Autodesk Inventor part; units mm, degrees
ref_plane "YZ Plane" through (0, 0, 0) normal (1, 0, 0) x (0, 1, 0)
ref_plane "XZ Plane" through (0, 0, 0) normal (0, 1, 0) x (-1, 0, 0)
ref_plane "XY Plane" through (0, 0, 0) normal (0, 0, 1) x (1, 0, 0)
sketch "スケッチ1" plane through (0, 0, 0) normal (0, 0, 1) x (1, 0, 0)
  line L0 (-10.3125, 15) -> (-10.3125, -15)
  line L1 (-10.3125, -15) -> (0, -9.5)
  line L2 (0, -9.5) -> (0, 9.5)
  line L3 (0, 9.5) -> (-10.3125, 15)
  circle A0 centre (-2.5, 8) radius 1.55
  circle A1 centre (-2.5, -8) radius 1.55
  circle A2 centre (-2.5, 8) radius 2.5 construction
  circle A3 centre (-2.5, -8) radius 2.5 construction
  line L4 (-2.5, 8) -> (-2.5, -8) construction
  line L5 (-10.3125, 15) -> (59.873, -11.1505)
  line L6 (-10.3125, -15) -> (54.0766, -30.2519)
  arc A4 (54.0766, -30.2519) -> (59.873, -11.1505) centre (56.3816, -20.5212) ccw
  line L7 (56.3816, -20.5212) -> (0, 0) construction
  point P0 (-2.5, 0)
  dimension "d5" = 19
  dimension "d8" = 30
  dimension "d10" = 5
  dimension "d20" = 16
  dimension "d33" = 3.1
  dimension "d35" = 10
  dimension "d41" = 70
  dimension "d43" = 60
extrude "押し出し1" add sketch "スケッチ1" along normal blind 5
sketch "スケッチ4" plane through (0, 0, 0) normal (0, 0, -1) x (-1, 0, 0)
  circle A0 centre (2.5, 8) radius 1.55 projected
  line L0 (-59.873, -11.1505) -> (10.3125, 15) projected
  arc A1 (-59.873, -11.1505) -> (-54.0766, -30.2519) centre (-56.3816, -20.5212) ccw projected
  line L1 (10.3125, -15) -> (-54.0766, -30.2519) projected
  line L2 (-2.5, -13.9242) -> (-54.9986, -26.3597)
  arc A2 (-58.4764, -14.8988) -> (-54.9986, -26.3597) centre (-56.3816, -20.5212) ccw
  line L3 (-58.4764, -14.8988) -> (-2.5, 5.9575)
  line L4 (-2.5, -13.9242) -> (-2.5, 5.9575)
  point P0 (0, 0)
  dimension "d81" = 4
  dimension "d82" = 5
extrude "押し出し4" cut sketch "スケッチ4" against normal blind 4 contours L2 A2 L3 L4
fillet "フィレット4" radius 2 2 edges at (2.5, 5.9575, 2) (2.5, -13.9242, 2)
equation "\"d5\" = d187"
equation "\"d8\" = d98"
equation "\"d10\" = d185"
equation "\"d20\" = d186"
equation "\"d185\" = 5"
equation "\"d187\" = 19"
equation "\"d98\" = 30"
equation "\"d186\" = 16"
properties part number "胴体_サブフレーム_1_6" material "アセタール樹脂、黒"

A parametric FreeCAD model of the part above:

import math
import FreeCAD as App
import Part
import Sketcher

V = App.Vector


def edges_at(feature, points):
    """Names of the edges that pass closest to the given points."""
    edges = feature.Shape.Edges
    near = lambda p: min(range(len(edges)), key=lambda i: edges[i].distToShape(Part.Vertex(*p))[0])
    return sorted({f"Edge{near(p) + 1}" for p in points})

doc = App.newDocument("Part")
body = doc.addObject("PartDesign::Body", "Body")

# Sketch on XY plane
sketch1 = doc.addObject("Sketcher::SketchObject", "Sketch")
body.addObject(sketch1)
sketch1.AttachmentSupport = (doc.XY_Plane, [""])
sketch1.MapMode = "FlatFace"
sketch1.addGeometry(Part.LineSegment(V(-10.3, 15, 0), V(-10.3, -15, 0)), False)
sketch1.addGeometry(Part.LineSegment(V(-10.3, -15, 0), V(54.1, -30.3, 0)), False)
sketch1.addGeometry(Part.ArcOfCircle(Part.Circle(V(56.4, -20.5, 0), V(0, 0, 1), 10), math.radians(-103), math.radians(70)), False)
sketch1.addGeometry(Part.LineSegment(V(59.9, -11.2, 0), V(-10.3, 15, 0)), False)
sketch1.addGeometry(Part.Circle(V(-2.5, -8, 0), V(0, 0, 1), 1.6), False)
sketch1.addGeometry(Part.Circle(V(-2.5, 8, 0), V(0, 0, 1), 1.6), False)
sketch1.addConstraint(Sketcher.Constraint("Coincident", 0, 2, 1, 1))
sketch1.addConstraint(Sketcher.Constraint("Tangent", 1, 2, 2, 1))
sketch1.addConstraint(Sketcher.Constraint("Tangent", 2, 2, 3, 1))
sketch1.addConstraint(Sketcher.Constraint("Coincident", 3, 2, 0, 1))
sketch1.addConstraint(Sketcher.Constraint("Vertical", 0))
sketch1.addConstraint(Sketcher.Constraint("Equal", 4, 5))
sketch1.addConstraint(Sketcher.Constraint("Symmetric", 4, 3, 5, 3, -1))
sketch1.addConstraint(Sketcher.Constraint("Radius", 2, 10.0))
sketch1.addConstraint(Sketcher.Constraint("Diameter", 4, 3.1))
sketch1.addConstraint(Sketcher.Constraint("DistanceY", 0, 2, 0, 1, 30.0))
sketch1.addConstraint(Sketcher.Constraint("DistanceY", 4, 3, 5, 3, 16.0))
sketch1.addConstraint(Sketcher.Constraint("DistanceY", 0, 2, -1, 1, 15.0))
sketch1.addConstraint(Sketcher.Constraint("DistanceX", 4, 3, -1, 1, 2.5))
sketch1.addConstraint(Sketcher.Constraint("Distance", 3, 74.899))
sketch1.addConstraint(Sketcher.Constraint("DistanceY", 1, 2, -1, 1, 30.252))
sketch1.addConstraint(Sketcher.Constraint("DistanceX", -1, 1, 2, 2, 59.873))
pad1 = doc.addObject("PartDesign::Pad", "Pad")
body.addObject(pad1)
pad1.Profile = sketch1
pad1.Length = 5

# Sketch on XY plane
sketch2 = doc.addObject("Sketcher::SketchObject", "Sketch001")
body.addObject(sketch2)
sketch2.AttachmentSupport = (doc.XY_Plane, [""])
sketch2.MapMode = "FlatFace"
sketch2.addGeometry(Part.LineSegment(V(55, -26, 0), V(2, -14, 0)), False)
sketch2.addGeometry(Part.LineSegment(V(2, -14, 0), V(2, 6, 0)), False)
sketch2.addGeometry(Part.LineSegment(V(2, 6, 0), V(58, -15, 0)), False)
sketch2.addGeometry(Part.ArcOfCircle(Part.Circle(V(56, -21, 0), V(0, 0, 1), 6), math.radians(-103), math.radians(70)), False)
sketch2.addConstraint(Sketcher.Constraint("Coincident", 0, 2, 1, 1))
sketch2.addConstraint(Sketcher.Constraint("Coincident", 1, 2, 2, 1))
sketch2.addConstraint(Sketcher.Constraint("Tangent", 2, 2, 3, 2))
sketch2.addConstraint(Sketcher.Constraint("Tangent", 3, 1, 0, 1))
sketch2.addConstraint(Sketcher.Constraint("Vertical", 1))
sketch2.addConstraint(Sketcher.Constraint("Radius", 3, 6.0))
sketch2.addConstraint(Sketcher.Constraint("DistanceX", -1, 1, 0, 2, 2.5))
sketch2.addConstraint(Sketcher.Constraint("DistanceY", 1, 1, 1, 2, 19.8817))
sketch2.addConstraint(Sketcher.Constraint("DistanceY", 3, 3, 0, 2, 6.597))
sketch2.addConstraint(Sketcher.Constraint("DistanceX", 3, 1, 3, 3, 1.383))
sketch2.addConstraint(Sketcher.Constraint("DistanceY", 3, 3, -1, 1, 20.5212))
pocket1 = doc.addObject("PartDesign::Pocket", "Pocket")
body.addObject(pocket1)
pocket1.Profile = sketch2
pocket1.Length = 4
pocket1.Reversed = True
doc.recompute()

fillet = doc.addObject("PartDesign::Fillet", "Fillet")
body.addObject(fillet)
fillet.Base = (pocket1, edges_at(pocket1, [(2.5, 5.957, 2), (2.5, -13.924, 2)]))
fillet.Radius = 2

doc.recompute()
